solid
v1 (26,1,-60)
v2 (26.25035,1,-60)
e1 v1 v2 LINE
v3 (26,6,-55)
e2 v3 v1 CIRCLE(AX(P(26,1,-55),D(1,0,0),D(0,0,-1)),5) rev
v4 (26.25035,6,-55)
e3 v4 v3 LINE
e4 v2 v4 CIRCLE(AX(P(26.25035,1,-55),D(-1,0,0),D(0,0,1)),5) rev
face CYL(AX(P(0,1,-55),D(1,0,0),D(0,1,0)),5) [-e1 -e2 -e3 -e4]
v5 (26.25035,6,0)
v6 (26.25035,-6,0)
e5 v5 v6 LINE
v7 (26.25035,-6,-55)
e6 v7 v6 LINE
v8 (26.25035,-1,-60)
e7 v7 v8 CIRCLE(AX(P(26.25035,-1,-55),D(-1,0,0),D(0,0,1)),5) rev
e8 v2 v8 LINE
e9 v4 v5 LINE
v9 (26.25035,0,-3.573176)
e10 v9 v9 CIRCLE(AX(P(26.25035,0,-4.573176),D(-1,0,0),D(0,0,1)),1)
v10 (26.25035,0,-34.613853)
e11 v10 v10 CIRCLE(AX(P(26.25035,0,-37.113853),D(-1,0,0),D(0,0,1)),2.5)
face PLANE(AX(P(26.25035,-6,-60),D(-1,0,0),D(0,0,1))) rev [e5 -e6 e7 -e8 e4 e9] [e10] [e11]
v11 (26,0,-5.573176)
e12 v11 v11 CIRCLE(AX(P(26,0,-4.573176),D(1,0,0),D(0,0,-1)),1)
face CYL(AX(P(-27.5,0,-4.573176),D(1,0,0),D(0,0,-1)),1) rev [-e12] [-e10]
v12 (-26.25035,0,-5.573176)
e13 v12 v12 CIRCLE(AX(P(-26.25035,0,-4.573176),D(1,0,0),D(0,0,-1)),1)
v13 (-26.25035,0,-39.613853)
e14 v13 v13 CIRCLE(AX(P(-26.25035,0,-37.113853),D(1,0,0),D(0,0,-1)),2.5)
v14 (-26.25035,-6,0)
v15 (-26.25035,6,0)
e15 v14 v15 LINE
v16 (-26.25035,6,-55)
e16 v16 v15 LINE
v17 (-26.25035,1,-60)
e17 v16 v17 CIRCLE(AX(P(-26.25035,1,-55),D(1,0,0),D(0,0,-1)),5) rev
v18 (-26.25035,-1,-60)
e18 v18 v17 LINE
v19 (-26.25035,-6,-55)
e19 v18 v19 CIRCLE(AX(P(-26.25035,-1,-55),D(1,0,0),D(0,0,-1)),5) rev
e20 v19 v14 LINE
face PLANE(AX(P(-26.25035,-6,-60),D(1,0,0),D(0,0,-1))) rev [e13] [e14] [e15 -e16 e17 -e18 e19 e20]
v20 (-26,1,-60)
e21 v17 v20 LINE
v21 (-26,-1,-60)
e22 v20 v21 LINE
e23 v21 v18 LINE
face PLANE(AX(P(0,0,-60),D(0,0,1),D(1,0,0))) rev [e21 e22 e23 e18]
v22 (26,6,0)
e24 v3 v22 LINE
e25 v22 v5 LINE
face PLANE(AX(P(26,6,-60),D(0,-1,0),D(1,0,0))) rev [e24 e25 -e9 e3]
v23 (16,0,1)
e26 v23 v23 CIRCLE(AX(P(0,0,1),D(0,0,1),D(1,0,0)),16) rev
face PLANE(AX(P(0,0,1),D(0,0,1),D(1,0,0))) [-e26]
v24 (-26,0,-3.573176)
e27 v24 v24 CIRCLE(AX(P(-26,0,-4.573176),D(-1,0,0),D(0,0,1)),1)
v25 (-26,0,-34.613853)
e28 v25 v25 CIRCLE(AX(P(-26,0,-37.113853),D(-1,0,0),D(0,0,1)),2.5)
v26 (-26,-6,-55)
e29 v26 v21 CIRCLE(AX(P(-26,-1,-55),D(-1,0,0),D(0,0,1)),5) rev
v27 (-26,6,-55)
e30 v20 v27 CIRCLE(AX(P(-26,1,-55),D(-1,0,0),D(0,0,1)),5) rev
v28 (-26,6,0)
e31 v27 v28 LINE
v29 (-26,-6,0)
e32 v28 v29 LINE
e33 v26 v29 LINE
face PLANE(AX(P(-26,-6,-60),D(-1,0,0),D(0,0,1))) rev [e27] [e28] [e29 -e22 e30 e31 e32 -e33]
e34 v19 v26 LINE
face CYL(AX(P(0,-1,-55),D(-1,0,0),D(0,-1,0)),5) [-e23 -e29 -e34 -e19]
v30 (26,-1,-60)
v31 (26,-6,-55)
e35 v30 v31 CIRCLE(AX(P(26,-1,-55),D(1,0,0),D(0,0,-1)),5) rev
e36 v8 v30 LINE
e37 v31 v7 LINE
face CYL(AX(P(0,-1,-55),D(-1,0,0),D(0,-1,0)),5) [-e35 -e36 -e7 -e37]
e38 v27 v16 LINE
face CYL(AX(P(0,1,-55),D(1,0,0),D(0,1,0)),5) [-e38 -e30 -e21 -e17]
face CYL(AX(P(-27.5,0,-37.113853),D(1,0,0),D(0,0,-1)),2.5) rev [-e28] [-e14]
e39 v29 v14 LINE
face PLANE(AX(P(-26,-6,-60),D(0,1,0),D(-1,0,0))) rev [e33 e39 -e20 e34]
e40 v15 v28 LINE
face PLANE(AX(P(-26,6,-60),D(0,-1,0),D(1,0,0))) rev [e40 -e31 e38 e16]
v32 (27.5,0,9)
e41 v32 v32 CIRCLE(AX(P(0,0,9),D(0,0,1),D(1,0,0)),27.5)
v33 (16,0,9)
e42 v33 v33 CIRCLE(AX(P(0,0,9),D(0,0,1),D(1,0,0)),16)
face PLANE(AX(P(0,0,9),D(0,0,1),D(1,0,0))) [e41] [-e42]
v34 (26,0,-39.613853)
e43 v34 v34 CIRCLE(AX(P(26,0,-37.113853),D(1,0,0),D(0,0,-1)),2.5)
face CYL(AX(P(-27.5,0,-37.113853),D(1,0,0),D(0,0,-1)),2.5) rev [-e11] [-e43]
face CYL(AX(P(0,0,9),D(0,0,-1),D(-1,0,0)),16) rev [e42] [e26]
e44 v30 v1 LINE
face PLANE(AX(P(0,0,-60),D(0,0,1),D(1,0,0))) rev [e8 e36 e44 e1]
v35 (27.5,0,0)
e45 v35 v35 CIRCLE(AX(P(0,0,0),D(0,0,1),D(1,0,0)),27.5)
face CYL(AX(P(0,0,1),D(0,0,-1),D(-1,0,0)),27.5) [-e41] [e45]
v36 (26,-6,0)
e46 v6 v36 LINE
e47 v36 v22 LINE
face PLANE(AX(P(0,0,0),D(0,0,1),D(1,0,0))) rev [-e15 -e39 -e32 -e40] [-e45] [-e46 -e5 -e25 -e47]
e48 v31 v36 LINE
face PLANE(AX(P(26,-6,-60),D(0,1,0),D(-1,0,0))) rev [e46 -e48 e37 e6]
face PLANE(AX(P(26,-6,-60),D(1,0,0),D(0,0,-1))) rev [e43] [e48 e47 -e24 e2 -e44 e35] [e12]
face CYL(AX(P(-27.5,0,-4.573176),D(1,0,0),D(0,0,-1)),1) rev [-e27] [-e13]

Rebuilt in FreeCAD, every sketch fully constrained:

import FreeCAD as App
import Part
import Sketcher

V = App.Vector


def edges_at(feature, points):
    """Names of the edges that pass closest to the given points."""
    edges = feature.Shape.Edges
    near = lambda p: min(range(len(edges)), key=lambda i: edges[i].distToShape(Part.Vertex(*p))[0])
    return sorted({f"Edge{near(p) + 1}" for p in points})


def add_polygon(sketch, points):
    """Adds a closed chain of lines whose ends are joined by coincident constraints."""
    first, n = sketch.GeometryCount, len(points)
    for a, b in zip(points, points[1:] + points[:1]):
        sketch.addGeometry(Part.LineSegment(App.Vector(*a, 0), App.Vector(*b, 0)), False)
    for i in range(n):
        sketch.addConstraint(Sketcher.Constraint("Coincident", first + i, 2, first + (i + 1) % n, 1))

doc = App.newDocument("Part")
params = doc.addObject("Spreadsheet::Sheet", "Params")
for row, (alias, value) in enumerate([
    ("sketch1_diameter", "55 mm"),
    ("pad1_length", "1 mm"),
    ("sketch2_diameter", "55 mm"),
    ("sketch2_diameter2", "32 mm"),
    ("pad2_length", "8 mm"),
    ("sketch3_height", "12 mm"),
    ("pad3_length", "60 mm"),
    ("sketch4_diameter", "5 mm"),
    ("sketch4_diameter2", "2 mm"),
    ("fillet_radius", "5 mm"),
], start=1):
    params.set(f"A{row}", alias)
    params.set(f"B{row}", "=" + value)
    params.setAlias(f"B{row}", alias)

body = doc.addObject("PartDesign::Body", "Body")

# Sketch on XY plane
sketch1 = body.newObject("Sketcher::SketchObject", "Sketch")
sketch1.AttachmentSupport = (doc.getObject("XY_Plane"), [""])
sketch1.MapMode = "FlatFace"
sketch1.addGeometry(Part.Circle(V(0, 0, 0), V(0, 0, 1), 27.5), False)
sketch1.addConstraint(Sketcher.Constraint("Coincident", 0, 3, -1, 1))
sketch1.addConstraint(Sketcher.Constraint("Diameter", 0, 55.0))
sketch1.setExpression("Constraints[1]", "Params.sketch1_diameter")
pad1 = body.newObject("PartDesign::Pad", "Pad")
pad1.Profile = sketch1
pad1.setExpression("Length", "Params.pad1_length")

# Sketch on XY plane
sketch2 = body.newObject("Sketcher::SketchObject", "Sketch001")
sketch2.AttachmentSupport = (doc.getObject("XY_Plane"), [""])
sketch2.MapMode = "FlatFace"
sketch2.AttachmentOffset = App.Placement(V(0, 0, 1), App.Rotation())
sketch2.addGeometry(Part.Circle(V(0, 0, 0), V(0, 0, 1), 27.5), False)
sketch2.addGeometry(Part.Circle(V(0, 0, 0), V(0, 0, 1), 16), False)
sketch2.addConstraint(Sketcher.Constraint("Coincident", 0, 3, -1, 1))
sketch2.addConstraint(Sketcher.Constraint("Coincident", 1, 3, -1, 1))
sketch2.addConstraint(Sketcher.Constraint("Diameter", 0, 55.0))
sketch2.addConstraint(Sketcher.Constraint("Diameter", 1, 32.0))
sketch2.setExpression("Constraints[2]", "Params.sketch2_diameter")
sketch2.setExpression("Constraints[3]", "Params.sketch2_diameter2")
pad2 = body.newObject("PartDesign::Pad", "Pad001")
pad2.Profile = sketch2
pad2.setExpression("Length", "Params.pad2_length")

# Sketch on XY plane
sketch3 = body.newObject("Sketcher::SketchObject", "Sketch002")
sketch3.AttachmentSupport = (doc.getObject("XY_Plane"), [""])
sketch3.MapMode = "FlatFace"
add_polygon(sketch3, [(26.25035, 6), (26.25035, -6), (26, -6), (26, 6)])  # lines 0-3
add_polygon(sketch3, [(-26, 6), (-26, -6), (-26.25035, -6), (-26.25035, 6)])  # lines 4-7
sketch3.addConstraint(Sketcher.Constraint("Vertical", 0))
sketch3.addConstraint(Sketcher.Constraint("Horizontal", 1))
sketch3.addConstraint(Sketcher.Constraint("Vertical", 2))
sketch3.addConstraint(Sketcher.Constraint("Horizontal", 3))
sketch3.addConstraint(Sketcher.Constraint("Vertical", 4))
sketch3.addConstraint(Sketcher.Constraint("Horizontal", 5))
sketch3.addConstraint(Sketcher.Constraint("Vertical", 6))
sketch3.addConstraint(Sketcher.Constraint("Horizontal", 7))
sketch3.addConstraint(Sketcher.Constraint("Symmetric", 2, 2, 4, 2, -1, 1))
sketch3.addConstraint(Sketcher.Constraint("Symmetric", 0, 2, 6, 2, -1, 1))
sketch3.addConstraint(Sketcher.Constraint("Horizontal", 1, 2, 4, 2))
sketch3.addConstraint(Sketcher.Constraint("DistanceY", 0, 2, 0, 1, 12.0))
sketch3.addConstraint(Sketcher.Constraint("DistanceX", -1, 1, 1, 2, 26.0))
sketch3.addConstraint(Sketcher.Constraint("DistanceX", 1, 2, 1, 1, 0.25035))
sketch3.setExpression("Constraints[19]", "Params.sketch3_height")
pad3 = body.newObject("PartDesign::Pad", "Pad002")
pad3.Profile = sketch3
pad3.setExpression("Length", "Params.pad3_length")
pad3.Reversed = True

# Sketch on YZ plane
sketch4 = body.newObject("Sketcher::SketchObject", "Sketch003")
sketch4.AttachmentSupport = (doc.getObject("YZ_Plane"), [""])
sketch4.MapMode = "FlatFace"
sketch4.addGeometry(Part.Circle(V(0, -37.113853, 0), V(0, 0, 1), 2.5), False)
sketch4.addGeometry(Part.Circle(V(0, -4.573176, 0), V(0, 0, 1), 1), False)
sketch4.addConstraint(Sketcher.Constraint("PointOnObject", 0, 3, -2))
sketch4.addConstraint(Sketcher.Constraint("PointOnObject", 1, 3, -2))
sketch4.addConstraint(Sketcher.Constraint("Diameter", 0, 5.0))
sketch4.addConstraint(Sketcher.Constraint("Diameter", 1, 2.0))
sketch4.addConstraint(Sketcher.Constraint("DistanceY", 0, 3, -1, 1, 37.113853))
sketch4.addConstraint(Sketcher.Constraint("DistanceY", 1, 3, -1, 1, 4.573176))
sketch4.setExpression("Constraints[2]", "Params.sketch4_diameter")
sketch4.setExpression("Constraints[3]", "Params.sketch4_diameter2")
pocket1 = body.newObject("PartDesign::Pocket", "Pocket")
pocket1.Profile = sketch4
pocket1.Type = "ThroughAll"
pocket1.Midplane = True
doc.recompute()

fillet = body.newObject("PartDesign::Fillet", "Fillet")
fillet.Base = (pocket1, edges_at(pocket1, [
    (-26.125, -6, -60),
    (-26.125, 6, -60),
    (26.125, -6, -60),
    (26.125, 6, -60),
]))
fillet.setExpression("Radius", "Params.fillet_radius")

doc.recompute()
